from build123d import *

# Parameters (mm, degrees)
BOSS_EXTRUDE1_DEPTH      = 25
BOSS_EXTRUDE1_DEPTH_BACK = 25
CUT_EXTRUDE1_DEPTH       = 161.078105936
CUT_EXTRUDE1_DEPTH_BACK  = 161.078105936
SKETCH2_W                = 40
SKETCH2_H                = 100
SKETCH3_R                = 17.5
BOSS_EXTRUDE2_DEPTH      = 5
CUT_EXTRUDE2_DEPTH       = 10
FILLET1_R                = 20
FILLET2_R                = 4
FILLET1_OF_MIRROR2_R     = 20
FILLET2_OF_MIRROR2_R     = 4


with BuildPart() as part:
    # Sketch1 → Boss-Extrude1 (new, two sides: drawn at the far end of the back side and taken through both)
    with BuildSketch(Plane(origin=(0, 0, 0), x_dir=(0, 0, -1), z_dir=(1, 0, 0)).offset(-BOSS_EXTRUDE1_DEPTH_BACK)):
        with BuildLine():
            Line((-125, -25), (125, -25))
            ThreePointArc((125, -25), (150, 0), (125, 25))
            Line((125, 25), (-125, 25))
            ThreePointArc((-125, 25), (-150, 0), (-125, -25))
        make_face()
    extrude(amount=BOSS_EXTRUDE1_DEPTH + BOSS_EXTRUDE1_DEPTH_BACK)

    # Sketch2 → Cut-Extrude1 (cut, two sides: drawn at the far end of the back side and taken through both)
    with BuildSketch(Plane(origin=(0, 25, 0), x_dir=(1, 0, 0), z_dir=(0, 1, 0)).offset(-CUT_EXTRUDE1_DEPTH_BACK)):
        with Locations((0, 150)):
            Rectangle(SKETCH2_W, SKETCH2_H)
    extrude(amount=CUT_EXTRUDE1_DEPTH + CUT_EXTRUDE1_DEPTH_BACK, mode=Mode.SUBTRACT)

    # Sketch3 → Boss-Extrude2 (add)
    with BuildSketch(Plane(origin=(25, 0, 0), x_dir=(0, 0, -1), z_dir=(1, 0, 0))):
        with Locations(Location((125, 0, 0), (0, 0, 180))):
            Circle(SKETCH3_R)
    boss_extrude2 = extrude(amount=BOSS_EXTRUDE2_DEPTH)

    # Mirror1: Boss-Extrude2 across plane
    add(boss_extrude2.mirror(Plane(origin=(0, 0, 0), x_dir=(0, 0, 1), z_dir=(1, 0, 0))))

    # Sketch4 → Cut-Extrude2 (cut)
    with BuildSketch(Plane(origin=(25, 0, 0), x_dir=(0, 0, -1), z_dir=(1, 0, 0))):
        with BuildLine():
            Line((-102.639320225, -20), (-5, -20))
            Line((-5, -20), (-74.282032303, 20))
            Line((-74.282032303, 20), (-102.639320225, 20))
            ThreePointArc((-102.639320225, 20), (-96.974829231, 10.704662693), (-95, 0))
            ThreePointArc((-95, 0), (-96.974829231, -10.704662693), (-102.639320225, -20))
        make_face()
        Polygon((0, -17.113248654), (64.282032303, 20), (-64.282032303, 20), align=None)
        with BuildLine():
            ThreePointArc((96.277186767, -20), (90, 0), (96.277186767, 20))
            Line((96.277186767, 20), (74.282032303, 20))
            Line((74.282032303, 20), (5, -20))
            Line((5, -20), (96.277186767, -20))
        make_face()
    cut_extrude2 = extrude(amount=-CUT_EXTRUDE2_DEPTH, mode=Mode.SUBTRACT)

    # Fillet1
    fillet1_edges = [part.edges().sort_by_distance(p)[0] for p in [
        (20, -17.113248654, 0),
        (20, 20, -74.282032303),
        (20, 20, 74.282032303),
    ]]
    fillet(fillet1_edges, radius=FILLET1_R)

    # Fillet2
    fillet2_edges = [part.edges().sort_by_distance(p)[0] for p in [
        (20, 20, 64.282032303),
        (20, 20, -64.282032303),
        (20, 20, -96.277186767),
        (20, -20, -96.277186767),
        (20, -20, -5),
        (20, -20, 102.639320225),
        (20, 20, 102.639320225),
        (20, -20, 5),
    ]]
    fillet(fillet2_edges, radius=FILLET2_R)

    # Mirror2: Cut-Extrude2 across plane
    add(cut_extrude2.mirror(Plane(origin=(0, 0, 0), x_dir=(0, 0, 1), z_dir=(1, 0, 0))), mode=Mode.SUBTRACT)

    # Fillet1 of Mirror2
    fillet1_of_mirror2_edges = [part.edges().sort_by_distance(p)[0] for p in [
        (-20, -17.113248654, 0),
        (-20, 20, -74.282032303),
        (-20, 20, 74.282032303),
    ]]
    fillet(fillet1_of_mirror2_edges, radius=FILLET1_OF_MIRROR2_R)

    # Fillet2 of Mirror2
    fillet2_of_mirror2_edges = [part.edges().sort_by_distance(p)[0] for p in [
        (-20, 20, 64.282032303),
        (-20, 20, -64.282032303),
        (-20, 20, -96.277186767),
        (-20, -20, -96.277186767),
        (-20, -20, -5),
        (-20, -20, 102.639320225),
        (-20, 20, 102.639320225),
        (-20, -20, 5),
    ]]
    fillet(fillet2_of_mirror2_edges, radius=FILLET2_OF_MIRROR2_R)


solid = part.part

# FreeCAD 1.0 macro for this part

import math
import FreeCAD as App
import Part
import Sketcher

V = App.Vector
Q = App.Units.Quantity


def edges_at(feature, points):
    """Names of the edges that pass closest to the given points."""
    edges = feature.Shape.Edges
    near = lambda p: min(range(len(edges)), key=lambda i: edges[i].distToShape(Part.Vertex(*p))[0])
    return sorted({f"Edge{near(p) + 1}" for p in points})


def add_polygon(sketch, points):
    """Adds a closed chain of lines whose ends are joined by coincident constraints."""
    first, n = sketch.GeometryCount, len(points)
    for a, b in zip(points, points[1:] + points[:1]):
        sketch.addGeometry(Part.LineSegment(App.Vector(*a, 0), App.Vector(*b, 0)), False)
    for i in range(n):
        sketch.addConstraint(Sketcher.Constraint("Coincident", first + i, 2, first + (i + 1) % n, 1))

doc = App.newDocument("Part")
body = doc.addObject("PartDesign::Body", "Body")

sketch1 = doc.addObject("Sketcher::SketchObject", "Sketch")
body.addObject(sketch1)
sketch1.AttachmentSupport = (doc.YZ_Plane, [""])
sketch1.MapMode = "FlatFace"
sketch1.addGeometry([
    Part.LineSegment(V(-25, 125, 0), V(-25, -125, 0)),
    Part.ArcOfCircle(Part.Circle(V(0, -125, 0), V(0, 0, 1), 25), math.radians(180), math.radians(360)),
    Part.LineSegment(V(25, -125, 0), V(25, 125, 0)),
    Part.ArcOfCircle(Part.Circle(V(0, 125, 0), V(0, 0, 1), 25), math.radians(0), math.radians(180)),
], False)
sketch1.addConstraint([
    Sketcher.Constraint("Tangent", 0, 2, 1, 1),
    Sketcher.Constraint("Tangent", 1, 2, 2, 1),
    Sketcher.Constraint("Tangent", 2, 2, 3, 1),
    Sketcher.Constraint("Tangent", 3, 2, 0, 1),
    Sketcher.Constraint("Vertical", 0),
    Sketcher.Constraint("Vertical", 2),
    Sketcher.Constraint("Symmetric", 1, 3, 3, 3, -1, 1),
    Sketcher.Constraint("Radius", 1, Q("25 mm")),
    Sketcher.Constraint("DistanceY", 0, 2, 0, 1, Q("250 mm")),
])
pad1 = doc.addObject("PartDesign::Pad", "Pad")
body.addObject(pad1)
pad1.Profile = sketch1
pad1.Type = "TwoLengths"
pad1.Length = 25
pad1.Length2 = 25

sketch2 = doc.addObject("Sketcher::SketchObject", "Sketch001")
body.addObject(sketch2)
sketch2.AttachmentSupport = (doc.XZ_Plane, [""])
sketch2.MapMode = "FlatFace"
sketch2.AttachmentOffset = App.Placement(V(0, 0, -25), App.Rotation())
add_polygon(sketch2, [(-20, -200), (-20, -100), (20, -100), (20, -200)])
sketch2.addConstraint([
    Sketcher.Constraint("Vertical", 0),
    Sketcher.Constraint("Horizontal", 1),
    Sketcher.Constraint("Vertical", 2),
    Sketcher.Constraint("Horizontal", 3),
    Sketcher.Constraint("DistanceX", 1, 1, 1, 2, Q("40 mm")),
    Sketcher.Constraint("DistanceY", 0, 1, 0, 2, Q("100 mm")),
    Sketcher.Constraint("DistanceX", 0, 2, -1, 1, Q("20 mm")),
    Sketcher.Constraint("DistanceY", 0, 2, -1, 1, Q("100 mm")),
])
pocket1 = doc.addObject("PartDesign::Pocket", "Pocket")
body.addObject(pocket1)
pocket1.Profile = sketch2
pocket1.Type = "ThroughAll"
pocket1.Midplane = True

sketch3 = doc.addObject("Sketcher::SketchObject", "Sketch002")
body.addObject(sketch3)
sketch3.AttachmentSupport = (doc.YZ_Plane, [""])
sketch3.MapMode = "FlatFace"
sketch3.AttachmentOffset = App.Placement(V(0, 0, 25), App.Rotation())
sketch3.addGeometry(Part.Circle(V(0, -125, 0), V(0, 0, 1), 18), False)
sketch3.addConstraint([
    Sketcher.Constraint("PointOnObject", 0, 3, -2),
    Sketcher.Constraint("Diameter", 0, Q("35 mm")),
    Sketcher.Constraint("DistanceY", 0, 3, -1, 1, Q("125 mm")),
])
pad2 = doc.addObject("PartDesign::Pad", "Pad001")
body.addObject(pad2)
pad2.Profile = sketch3
pad2.Length = 5
doc.recompute()

mirrored = doc.addObject("PartDesign::Mirrored", "Mirrored")
body.addObject(mirrored)
mirrored.Originals = [pad2]
mirrored.MirrorPlane = (doc.YZ_Plane, [""])
body.Tip = mirrored

sketch4 = doc.addObject("Sketcher::SketchObject", "Sketch003")
body.addObject(sketch4)
sketch4.AttachmentSupport = (doc.YZ_Plane, [""])
sketch4.MapMode = "FlatFace"
sketch4.AttachmentOffset = App.Placement(V(0, 0, 25), App.Rotation())
sketch4.addGeometry(Part.LineSegment(V(-20, 103, 0), V(-20, 5, 0)), False)
sketch4.addGeometry(Part.LineSegment(V(-20, 5, 0), V(20, 74, 0)), False)
sketch4.addGeometry(Part.LineSegment(V(20, 74, 0), V(20, 103, 0)), False)
sketch4.addGeometry(Part.ArcOfCircle(Part.Circle(V(0, 125, 0), V(0, 0, 1), 30), math.radians(-90), math.radians(-48)), False)
sketch4.addGeometry(Part.ArcOfCircle(Part.Circle(V(0, 125, 0), V(0, 0, 1), 30), math.radians(-132), math.radians(-90)), False)
add_polygon(sketch4, [(-17, 0), (20, -64), (20, 64)])
sketch4.addGeometry(Part.ArcOfCircle(Part.Circle(V(0, -125, 0), V(0, 0, 1), 35), math.radians(55), math.radians(125)), False)
sketch4.addGeometry(Part.LineSegment(V(20, -96, 0), V(20, -74, 0)), False)
sketch4.addGeometry(Part.LineSegment(V(20, -74, 0), V(-20, -5, 0)), False)
sketch4.addGeometry(Part.LineSegment(V(-20, -5, 0), V(-20, -96, 0)), False)
sketch4.addConstraint([
    Sketcher.Constraint("Coincident", 0, 2, 1, 1),
    Sketcher.Constraint("Coincident", 1, 2, 2, 1),
    Sketcher.Constraint("Coincident", 2, 2, 3, 2),
    Sketcher.Constraint("Tangent", 3, 1, 4, 2),
    Sketcher.Constraint("Coincident", 4, 1, 0, 1),
    Sketcher.Constraint("Coincident", 8, 1, 9, 1),
    Sketcher.Constraint("Coincident", 9, 2, 10, 1),
    Sketcher.Constraint("Coincident", 10, 2, 11, 1),
    Sketcher.Constraint("Coincident", 11, 2, 8, 2),
    Sketcher.Constraint("Vertical", 0),
    Sketcher.Constraint("Vertical", 2),
    Sketcher.Constraint("Vertical", 6),
    Sketcher.Constraint("Vertical", 9),
    Sketcher.Constraint("Vertical", 11),
    Sketcher.Constraint("Equal", 3, 4),
    Sketcher.Constraint("Symmetric", 3, 3, 8, 3, -1, 1),
    Sketcher.Constraint("Symmetric", 2, 2, 4, 1, -2),
    Sketcher.Constraint("Symmetric", 1, 2, 9, 2, -1),
    Sketcher.Constraint("Symmetric", 0, 2, 10, 2, -1),
    Sketcher.Constraint("PointOnObject", 3, 1, -2),
    Sketcher.Constraint("PointOnObject", 7, 2, -1),
    Sketcher.Constraint("Parallel", 1, 7),
    Sketcher.Constraint("Parallel", 5, 10),
    Sketcher.Constraint("Vertical", 2, 2, 5, 2),
    Sketcher.Constraint("Radius", 3, Q("30 mm")),
    Sketcher.Constraint("Radius", 8, Q("35 mm")),
    Sketcher.Constraint("Angle", 1, Q("60 deg")),
    Sketcher.Constraint("Distance", 1, Q("80 mm")),
    Sketcher.Constraint("DistanceY", -1, 1, 3, 3, Q("125 mm")),
    Sketcher.Constraint("DistanceY", -1, 1, 0, 2, Q("5 mm")),
    Sketcher.Constraint("DistanceY", 6, 2, 1, 2, Q("10 mm")),
])
pocket2 = doc.addObject("PartDesign::Pocket", "Pocket001")
body.addObject(pocket2)
pocket2.Profile = sketch4
pocket2.Length = 10
doc.recompute()

fillet = doc.addObject("PartDesign::Fillet", "Fillet")
body.addObject(fillet)
fillet.Base = (pocket2, edges_at(pocket2, [(20, -17.113, 0), (20, 20, -74.282), (20, 20, 74.282)]))
fillet.Radius = 20
doc.recompute()

fillet2 = doc.addObject("PartDesign::Fillet", "Fillet001")
body.addObject(fillet2)
fillet2.Base = (fillet, edges_at(fillet, [
    (20, 20, 64.282),
    (20, 20, -64.282),
    (20, 20, -96.277),
    (20, -20, -96.277),
    (20, -20, -5),
    (20, -20, 102.639),
    (20, 20, 102.639),
    (20, -20, 5),
]))
fillet2.Radius = 4
doc.recompute()

mirrored2 = doc.addObject("PartDesign::Mirrored", "Mirrored001")
body.addObject(mirrored2)
mirrored2.Originals = [pocket2]
mirrored2.MirrorPlane = (doc.YZ_Plane, [""])
body.Tip = mirrored2
doc.recompute()

fillet3 = doc.addObject("PartDesign::Fillet", "Fillet002")
body.addObject(fillet3)
fillet3.Base = (mirrored2, edges_at(mirrored2, [(-20, -17.113, 0), (-20, 20, -74.282), (-20, 20, 74.282)]))
fillet3.Radius = 20
doc.recompute()

fillet4 = doc.addObject("PartDesign::Fillet", "Fillet003")
body.addObject(fillet4)
fillet4.Base = (fillet3, edges_at(fillet3, [
    (-20, 20, 64.282),
    (-20, 20, -64.282),
    (-20, 20, -96.277),
    (-20, -20, -96.277),
    (-20, -20, -5),
    (-20, -20, 102.639),
    (-20, 20, 102.639),
    (-20, -20, 5),
]))
fillet4.Radius = 4

doc.recompute()
